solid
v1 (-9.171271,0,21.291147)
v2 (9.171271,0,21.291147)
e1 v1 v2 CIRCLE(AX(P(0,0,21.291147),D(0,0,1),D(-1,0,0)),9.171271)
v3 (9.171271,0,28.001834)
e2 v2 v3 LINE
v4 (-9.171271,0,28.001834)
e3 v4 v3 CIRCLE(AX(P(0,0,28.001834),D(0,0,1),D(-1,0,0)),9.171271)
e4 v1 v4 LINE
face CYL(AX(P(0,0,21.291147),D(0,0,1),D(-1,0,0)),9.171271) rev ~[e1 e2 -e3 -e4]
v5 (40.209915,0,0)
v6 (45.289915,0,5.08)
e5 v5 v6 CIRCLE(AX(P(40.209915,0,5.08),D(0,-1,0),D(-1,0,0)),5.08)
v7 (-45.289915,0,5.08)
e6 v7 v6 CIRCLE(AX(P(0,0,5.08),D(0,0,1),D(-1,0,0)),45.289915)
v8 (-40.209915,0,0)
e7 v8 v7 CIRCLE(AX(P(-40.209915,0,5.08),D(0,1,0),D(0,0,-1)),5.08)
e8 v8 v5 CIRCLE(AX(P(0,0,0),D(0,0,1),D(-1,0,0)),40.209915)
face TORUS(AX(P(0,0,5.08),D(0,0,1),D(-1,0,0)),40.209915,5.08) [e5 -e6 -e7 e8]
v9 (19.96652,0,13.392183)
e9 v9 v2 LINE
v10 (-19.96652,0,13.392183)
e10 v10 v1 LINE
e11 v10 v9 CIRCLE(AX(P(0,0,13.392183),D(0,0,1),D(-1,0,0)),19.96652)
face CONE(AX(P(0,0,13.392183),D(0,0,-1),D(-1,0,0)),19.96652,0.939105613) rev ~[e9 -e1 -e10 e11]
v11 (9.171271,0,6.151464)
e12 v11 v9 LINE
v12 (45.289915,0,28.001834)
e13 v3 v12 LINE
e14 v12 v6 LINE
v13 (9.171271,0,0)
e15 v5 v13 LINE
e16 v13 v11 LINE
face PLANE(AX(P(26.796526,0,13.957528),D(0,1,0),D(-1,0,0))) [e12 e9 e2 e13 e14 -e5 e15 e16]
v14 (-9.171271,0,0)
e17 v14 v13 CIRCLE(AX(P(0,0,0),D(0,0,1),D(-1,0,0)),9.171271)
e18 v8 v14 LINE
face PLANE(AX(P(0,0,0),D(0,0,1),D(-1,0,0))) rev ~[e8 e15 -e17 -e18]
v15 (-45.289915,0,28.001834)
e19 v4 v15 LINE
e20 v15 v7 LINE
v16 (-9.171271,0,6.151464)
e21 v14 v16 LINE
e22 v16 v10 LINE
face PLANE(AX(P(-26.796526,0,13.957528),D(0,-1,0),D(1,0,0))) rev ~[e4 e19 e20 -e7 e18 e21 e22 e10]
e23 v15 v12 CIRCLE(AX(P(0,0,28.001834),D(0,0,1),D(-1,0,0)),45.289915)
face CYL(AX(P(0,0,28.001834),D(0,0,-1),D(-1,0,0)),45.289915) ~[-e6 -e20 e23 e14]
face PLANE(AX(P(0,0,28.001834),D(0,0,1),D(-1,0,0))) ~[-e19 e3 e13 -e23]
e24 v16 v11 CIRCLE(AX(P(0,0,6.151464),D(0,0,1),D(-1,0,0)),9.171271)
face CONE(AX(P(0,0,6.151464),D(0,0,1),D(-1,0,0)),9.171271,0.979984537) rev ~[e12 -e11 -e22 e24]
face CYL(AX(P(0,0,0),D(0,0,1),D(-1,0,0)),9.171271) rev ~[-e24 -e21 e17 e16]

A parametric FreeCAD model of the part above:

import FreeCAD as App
import Part
import Sketcher
Q = App.Units.Quantity


def edges_at(feature, points):
    """Names of the edges that pass closest to the given points."""
    edges = feature.Shape.Edges
    near = lambda p: min(range(len(edges)), key=lambda i: edges[i].distToShape(Part.Vertex(*p))[0])
    return sorted({f"Edge{near(p) + 1}" for p in points})


def add_polygon(sketch, points):
    """Adds a closed chain of lines whose ends are joined by coincident constraints."""
    first, n = sketch.GeometryCount, len(points)
    for a, b in zip(points, points[1:] + points[:1]):
        sketch.addGeometry(Part.LineSegment(App.Vector(*a, 0), App.Vector(*b, 0)), False)
    for i in range(n):
        sketch.addConstraint(Sketcher.Constraint("Coincident", first + i, 2, first + (i + 1) % n, 1))

doc = App.newDocument("Part")
body = doc.addObject("PartDesign::Body", "Body")

# Sketch on XZ plane
sketch1 = doc.addObject("Sketcher::SketchObject", "Sketch")
body.addObject(sketch1)
sketch1.AttachmentSupport = (doc.XZ_Plane, [""])
sketch1.MapMode = "FlatFace"
add_polygon(sketch1, [(-45, 0), (-9, 0), (-9, 6), (-20, 13), (-9, 21), (-9, 28), (-45, 28)])  # lines 0-6
sketch1.addConstraint(Sketcher.Constraint("Horizontal", 0))
sketch1.addConstraint(Sketcher.Constraint("Vertical", 1))
sketch1.addConstraint(Sketcher.Constraint("Vertical", 4))
sketch1.addConstraint(Sketcher.Constraint("Horizontal", 5))
sketch1.addConstraint(Sketcher.Constraint("Vertical", 6))
sketch1.addConstraint(Sketcher.Constraint("PointOnObject", 0, 2, -1))
sketch1.addConstraint(Sketcher.Constraint("Vertical", 1, 2, 3, 2))
sketch1.addConstraint(Sketcher.Constraint("Distance", 2, Q("12.99867 mm")))
sketch1.addConstraint(Sketcher.Constraint("Distance", 3, Q("13.376511 mm")))
sketch1.addConstraint(Sketcher.Constraint("DistanceX", 0, 1, 0, 2, Q("36.118644 mm")))
sketch1.addConstraint(Sketcher.Constraint("DistanceY", 1, 1, 1, 2, Q("6.151464 mm")))
sketch1.addConstraint(Sketcher.Constraint("DistanceY", 4, 1, 4, 2, Q("6.710687 mm")))
sketch1.addConstraint(Sketcher.Constraint("DistanceY", 6, 2, 6, 1, Q("28.001834 mm")))
sketch1.addConstraint(Sketcher.Constraint("DistanceX", 0, 2, -1, 1, Q("9.171271 mm")))
revolution = doc.addObject("PartDesign::Revolution", "Revolution")
body.addObject(revolution)
revolution.Profile = sketch1
revolution.ReferenceAxis = (sketch1, ["V_Axis"])
revolution.Angle = 180
doc.recompute()

fillet = doc.addObject("PartDesign::Fillet", "Fillet")
body.addObject(fillet)
fillet.Base = (revolution, edges_at(revolution, [(0, -45.29, 0)]))
fillet.Radius = Q("0.2 in")

doc.recompute()
